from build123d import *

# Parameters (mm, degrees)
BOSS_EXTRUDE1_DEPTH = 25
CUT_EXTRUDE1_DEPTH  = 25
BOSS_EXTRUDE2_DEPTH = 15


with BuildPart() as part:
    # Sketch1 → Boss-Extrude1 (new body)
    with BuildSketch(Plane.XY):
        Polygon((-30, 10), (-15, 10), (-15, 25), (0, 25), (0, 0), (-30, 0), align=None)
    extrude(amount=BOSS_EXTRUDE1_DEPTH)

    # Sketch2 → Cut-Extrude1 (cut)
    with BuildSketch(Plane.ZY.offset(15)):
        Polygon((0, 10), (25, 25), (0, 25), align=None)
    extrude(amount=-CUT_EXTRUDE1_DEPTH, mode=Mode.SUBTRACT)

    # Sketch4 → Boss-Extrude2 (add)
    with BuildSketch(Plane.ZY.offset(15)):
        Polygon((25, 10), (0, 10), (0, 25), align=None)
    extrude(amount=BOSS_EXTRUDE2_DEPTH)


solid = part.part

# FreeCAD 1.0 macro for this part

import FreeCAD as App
import Part
import Sketcher
Q = App.Units.Quantity

doc = App.newDocument("Part")
body = doc.addObject("PartDesign::Body", "Body")

sketch1 = body.newObject("Sketcher::SketchObject", "Sketch")
sketch1.AttachmentSupport = (doc.getObject("XY_Plane"), [""])
sketch1.MapMode = "FlatFace"
sketch1.addGeometry(Part.LineSegment(App.Vector(-15, 10, 0), App.Vector(-30, 10, 0)), False)
sketch1.addGeometry(Part.LineSegment(App.Vector(-30, 10, 0), App.Vector(-30, 0, 0)), False)
sketch1.addGeometry(Part.LineSegment(App.Vector(-30, 0, 0), App.Vector(0, 0, 0)), False)
sketch1.addGeometry(Part.LineSegment(App.Vector(0, 0, 0), App.Vector(0, 25, 0)), False)
sketch1.addGeometry(Part.LineSegment(App.Vector(0, 25, 0), App.Vector(-15, 25, 0)), False)
sketch1.addGeometry(Part.LineSegment(App.Vector(-15, 25, 0), App.Vector(-15, 10, 0)), False)
sketch1.addConstraint(Sketcher.Constraint("Coincident", 0, 2, 1, 1))
sketch1.addConstraint(Sketcher.Constraint("Coincident", 1, 2, 2, 1))
sketch1.addConstraint(Sketcher.Constraint("Coincident", 2, 2, 3, 1))
sketch1.addConstraint(Sketcher.Constraint("Coincident", 3, 2, 4, 1))
sketch1.addConstraint(Sketcher.Constraint("Coincident", 4, 2, 5, 1))
sketch1.addConstraint(Sketcher.Constraint("Coincident", 5, 2, 0, 1))
sketch1.addConstraint(Sketcher.Constraint("Horizontal", 0))
sketch1.addConstraint(Sketcher.Constraint("Vertical", 1))
sketch1.addConstraint(Sketcher.Constraint("Horizontal", 2))
sketch1.addConstraint(Sketcher.Constraint("Vertical", 3))
sketch1.addConstraint(Sketcher.Constraint("Horizontal", 4))
sketch1.addConstraint(Sketcher.Constraint("Vertical", 5))
sketch1.addConstraint(Sketcher.Constraint("Coincident", 2, 2, -1, 1))
sketch1.addConstraint(Sketcher.Constraint("Equal", 0, 4))
sketch1.addConstraint(Sketcher.Constraint("Equal", 4, 5))
sketch1.addConstraint(Sketcher.Constraint("DistanceX", 0, 2, 0, 1, Q("15 mm")))
sketch1.addConstraint(Sketcher.Constraint("DistanceY", 1, 2, 1, 1, Q("10 mm")))
pad1 = body.newObject("PartDesign::Pad", "Pad")
pad1.Profile = sketch1
pad1.Length = 25

sketch2 = body.newObject("Sketcher::SketchObject", "Sketch001")
sketch2.AttachmentSupport = (doc.getObject("YZ_Plane"), [""])
sketch2.MapMode = "FlatFace"
sketch2.AttachmentOffset = App.Placement(App.Vector(0, 0, -15), App.Rotation())
sketch2.addGeometry(Part.LineSegment(App.Vector(10, 0, 0), App.Vector(25, 25, 0)), False)
sketch2.addGeometry(Part.LineSegment(App.Vector(25, 25, 0), App.Vector(25, 0, 0)), False)
sketch2.addGeometry(Part.LineSegment(App.Vector(25, 0, 0), App.Vector(10, 0, 0)), False)
sketch2.addConstraint(Sketcher.Constraint("Coincident", 0, 2, 1, 1))
sketch2.addConstraint(Sketcher.Constraint("Coincident", 1, 2, 2, 1))
sketch2.addConstraint(Sketcher.Constraint("Coincident", 2, 2, 0, 1))
sketch2.addConstraint(Sketcher.Constraint("Vertical", 1))
sketch2.addConstraint(Sketcher.Constraint("Horizontal", 2))
sketch2.addConstraint(Sketcher.Constraint("PointOnObject", 1, 2, -1))
sketch2.addConstraint(Sketcher.Constraint("DistanceX", 2, 2, 2, 1, Q("15 mm")))
sketch2.addConstraint(Sketcher.Constraint("DistanceY", 1, 2, 1, 1, Q("25 mm")))
sketch2.addConstraint(Sketcher.Constraint("DistanceX", -1, 1, 0, 2, Q("25 mm")))
pocket1 = body.newObject("PartDesign::Pocket", "Pocket")
pocket1.Profile = sketch2
pocket1.Length = 25
pocket1.Reversed = True

sketch3 = body.newObject("Sketcher::SketchObject", "Sketch002")
sketch3.AttachmentSupport = (doc.getObject("YZ_Plane"), [""])
sketch3.MapMode = "FlatFace"
sketch3.AttachmentOffset = App.Placement(App.Vector(0, 0, -15), App.Rotation())
sketch3.addGeometry(Part.LineSegment(App.Vector(10, 0, 0), App.Vector(10, 25, 0)), False)
sketch3.addGeometry(Part.LineSegment(App.Vector(10, 25, 0), App.Vector(25, 0, 0)), False)
sketch3.addGeometry(Part.LineSegment(App.Vector(25, 0, 0), App.Vector(10, 0, 0)), False)
sketch3.addConstraint(Sketcher.Constraint("Coincident", 0, 2, 1, 1))
sketch3.addConstraint(Sketcher.Constraint("Coincident", 1, 2, 2, 1))
sketch3.addConstraint(Sketcher.Constraint("Coincident", 2, 2, 0, 1))
sketch3.addConstraint(Sketcher.Constraint("Vertical", 0))
sketch3.addConstraint(Sketcher.Constraint("Horizontal", 2))
sketch3.addConstraint(Sketcher.Constraint("PointOnObject", 1, 2, -1))
sketch3.addConstraint(Sketcher.Constraint("DistanceX", 2, 2, 2, 1, Q("15 mm")))
sketch3.addConstraint(Sketcher.Constraint("DistanceY", 0, 1, 0, 2, Q("25 mm")))
sketch3.addConstraint(Sketcher.Constraint("DistanceX", -1, 1, 0, 2, Q("10 mm")))
pad2 = body.newObject("PartDesign::Pad", "Pad001")
pad2.Profile = sketch3
pad2.Length = 15
pad2.Reversed = True

doc.recompute()
